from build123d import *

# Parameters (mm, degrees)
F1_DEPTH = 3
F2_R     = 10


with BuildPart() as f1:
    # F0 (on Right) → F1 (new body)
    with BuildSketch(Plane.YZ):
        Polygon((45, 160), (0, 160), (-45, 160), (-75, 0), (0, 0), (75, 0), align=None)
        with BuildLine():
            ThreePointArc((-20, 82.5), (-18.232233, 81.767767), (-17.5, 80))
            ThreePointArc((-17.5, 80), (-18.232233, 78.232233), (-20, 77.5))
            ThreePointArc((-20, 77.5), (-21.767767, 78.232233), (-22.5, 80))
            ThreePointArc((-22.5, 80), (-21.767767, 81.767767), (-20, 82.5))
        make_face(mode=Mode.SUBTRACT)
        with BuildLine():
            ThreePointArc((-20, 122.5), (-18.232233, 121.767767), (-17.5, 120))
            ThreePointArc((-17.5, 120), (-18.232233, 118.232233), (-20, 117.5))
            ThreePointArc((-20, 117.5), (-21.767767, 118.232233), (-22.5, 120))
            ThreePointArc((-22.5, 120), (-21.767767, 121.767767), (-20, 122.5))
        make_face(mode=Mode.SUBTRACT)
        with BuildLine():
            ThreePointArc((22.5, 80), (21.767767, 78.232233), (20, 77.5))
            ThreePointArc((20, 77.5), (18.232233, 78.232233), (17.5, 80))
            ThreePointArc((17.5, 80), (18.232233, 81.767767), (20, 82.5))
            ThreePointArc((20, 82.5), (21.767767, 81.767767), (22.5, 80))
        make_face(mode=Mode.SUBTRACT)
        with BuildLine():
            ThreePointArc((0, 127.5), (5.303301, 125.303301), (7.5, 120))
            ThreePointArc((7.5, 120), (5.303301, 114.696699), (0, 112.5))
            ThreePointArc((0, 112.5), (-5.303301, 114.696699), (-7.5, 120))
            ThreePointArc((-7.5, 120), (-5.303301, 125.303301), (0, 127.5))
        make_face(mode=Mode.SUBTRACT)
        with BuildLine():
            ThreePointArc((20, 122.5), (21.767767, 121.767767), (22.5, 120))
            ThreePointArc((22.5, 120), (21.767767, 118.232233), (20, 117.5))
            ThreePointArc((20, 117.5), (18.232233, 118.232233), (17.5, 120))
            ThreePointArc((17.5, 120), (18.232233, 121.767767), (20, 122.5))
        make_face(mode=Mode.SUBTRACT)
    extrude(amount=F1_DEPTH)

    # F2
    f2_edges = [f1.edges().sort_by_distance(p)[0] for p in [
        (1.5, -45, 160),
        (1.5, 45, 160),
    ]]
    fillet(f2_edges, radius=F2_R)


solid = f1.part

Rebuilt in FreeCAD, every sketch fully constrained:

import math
import FreeCAD as App
import Part
import Sketcher
Q = App.Units.Quantity


def edges_at(feature, points):
    """Names of the edges that pass closest to the given points."""
    edges = feature.Shape.Edges
    near = lambda p: min(range(len(edges)), key=lambda i: edges[i].distToShape(Part.Vertex(*p))[0])
    return sorted({f"Edge{near(p) + 1}" for p in points})


def add_polygon(sketch, points):
    """Adds a closed chain of lines whose ends are joined by coincident constraints."""
    first, n = sketch.GeometryCount, len(points)
    for a, b in zip(points, points[1:] + points[:1]):
        sketch.addGeometry(Part.LineSegment(App.Vector(*a, 0), App.Vector(*b, 0)), False)
    for i in range(n):
        sketch.addConstraint(Sketcher.Constraint("Coincident", first + i, 2, first + (i + 1) % n, 1))

doc = App.newDocument("Part")
body = doc.addObject("PartDesign::Body", "Body")

# Sketch on YZ plane
sketch1 = body.newObject("Sketcher::SketchObject", "Sketch")
sketch1.AttachmentSupport = (doc.getObject("YZ_Plane"), [""])
sketch1.MapMode = "FlatFace"
add_polygon(sketch1, [(45, 160), (-45, 160), (-75, 0), (75, 0)])  # lines 0-3
sketch1.addGeometry(Part.ArcOfCircle(Part.Circle(App.Vector(-20, 80, 0), App.Vector(0, 0, 1), 2.5), math.radians(90), math.radians(180)), False)  # 4
sketch1.addGeometry(Part.ArcOfCircle(Part.Circle(App.Vector(-20, 80, 0), App.Vector(0, 0, 1), 2.5), math.radians(0), math.radians(90)), False)  # 5
sketch1.addGeometry(Part.ArcOfCircle(Part.Circle(App.Vector(-20, 80, 0), App.Vector(0, 0, 1), 2.5), math.radians(-90), math.radians(0)), False)  # 6
sketch1.addGeometry(Part.ArcOfCircle(Part.Circle(App.Vector(-20, 80, 0), App.Vector(0, 0, 1), 2.5), math.radians(180), math.radians(270)), False)  # 7
sketch1.addGeometry(Part.ArcOfCircle(Part.Circle(App.Vector(20, 80, 0), App.Vector(0, 0, 1), 2.5), math.radians(0), math.radians(90)), False)  # 8
sketch1.addGeometry(Part.ArcOfCircle(Part.Circle(App.Vector(20, 80, 0), App.Vector(0, 0, 1), 2.5), math.radians(-90), math.radians(0)), False)  # 9
sketch1.addGeometry(Part.ArcOfCircle(Part.Circle(App.Vector(20, 80, 0), App.Vector(0, 0, 1), 2.5), math.radians(180), math.radians(270)), False)  # 10
sketch1.addGeometry(Part.ArcOfCircle(Part.Circle(App.Vector(20, 80, 0), App.Vector(0, 0, 1), 2.5), math.radians(90), math.radians(180)), False)  # 11
sketch1.addGeometry(Part.ArcOfCircle(Part.Circle(App.Vector(-20, 120, 0), App.Vector(0, 0, 1), 2.5), math.radians(90), math.radians(180)), False)  # 12
sketch1.addGeometry(Part.ArcOfCircle(Part.Circle(App.Vector(-20, 120, 0), App.Vector(0, 0, 1), 2.5), math.radians(0), math.radians(90)), False)  # 13
sketch1.addGeometry(Part.ArcOfCircle(Part.Circle(App.Vector(-20, 120, 0), App.Vector(0, 0, 1), 2.5), math.radians(-90), math.radians(0)), False)  # 14
sketch1.addGeometry(Part.ArcOfCircle(Part.Circle(App.Vector(-20, 120, 0), App.Vector(0, 0, 1), 2.5), math.radians(180), math.radians(270)), False)  # 15
sketch1.addGeometry(Part.ArcOfCircle(Part.Circle(App.Vector(0, 120, 0), App.Vector(0, 0, 1), 7.5), math.radians(90), math.radians(180)), False)  # 16
sketch1.addGeometry(Part.ArcOfCircle(Part.Circle(App.Vector(0, 120, 0), App.Vector(0, 0, 1), 7.5), math.radians(0), math.radians(90)), False)  # 17
sketch1.addGeometry(Part.ArcOfCircle(Part.Circle(App.Vector(0, 120, 0), App.Vector(0, 0, 1), 7.5), math.radians(-90), math.radians(0)), False)  # 18
sketch1.addGeometry(Part.ArcOfCircle(Part.Circle(App.Vector(0, 120, 0), App.Vector(0, 0, 1), 7.5), math.radians(180), math.radians(270)), False)  # 19
sketch1.addGeometry(Part.ArcOfCircle(Part.Circle(App.Vector(20, 120, 0), App.Vector(0, 0, 1), 2.5), math.radians(90), math.radians(180)), False)  # 20
sketch1.addGeometry(Part.ArcOfCircle(Part.Circle(App.Vector(20, 120, 0), App.Vector(0, 0, 1), 2.5), math.radians(0), math.radians(90)), False)  # 21
sketch1.addGeometry(Part.ArcOfCircle(Part.Circle(App.Vector(20, 120, 0), App.Vector(0, 0, 1), 2.5), math.radians(-90), math.radians(0)), False)  # 22
sketch1.addGeometry(Part.ArcOfCircle(Part.Circle(App.Vector(20, 120, 0), App.Vector(0, 0, 1), 2.5), math.radians(180), math.radians(270)), False)  # 23
sketch1.addConstraint(Sketcher.Constraint("Tangent", 4, 1, 5, 2))
sketch1.addConstraint(Sketcher.Constraint("Tangent", 5, 1, 6, 2))
sketch1.addConstraint(Sketcher.Constraint("Tangent", 6, 1, 7, 2))
sketch1.addConstraint(Sketcher.Constraint("Tangent", 7, 1, 4, 2))
sketch1.addConstraint(Sketcher.Constraint("Tangent", 8, 1, 9, 2))
sketch1.addConstraint(Sketcher.Constraint("Tangent", 9, 1, 10, 2))
sketch1.addConstraint(Sketcher.Constraint("Tangent", 10, 1, 11, 2))
sketch1.addConstraint(Sketcher.Constraint("Tangent", 11, 1, 8, 2))
sketch1.addConstraint(Sketcher.Constraint("Tangent", 12, 1, 13, 2))
sketch1.addConstraint(Sketcher.Constraint("Tangent", 13, 1, 14, 2))
sketch1.addConstraint(Sketcher.Constraint("Tangent", 14, 1, 15, 2))
sketch1.addConstraint(Sketcher.Constraint("Tangent", 15, 1, 12, 2))
sketch1.addConstraint(Sketcher.Constraint("Tangent", 16, 1, 17, 2))
sketch1.addConstraint(Sketcher.Constraint("Tangent", 17, 1, 18, 2))
sketch1.addConstraint(Sketcher.Constraint("Tangent", 18, 1, 19, 2))
sketch1.addConstraint(Sketcher.Constraint("Tangent", 19, 1, 16, 2))
sketch1.addConstraint(Sketcher.Constraint("Tangent", 20, 1, 21, 2))
sketch1.addConstraint(Sketcher.Constraint("Tangent", 21, 1, 22, 2))
sketch1.addConstraint(Sketcher.Constraint("Tangent", 22, 1, 23, 2))
sketch1.addConstraint(Sketcher.Constraint("Tangent", 23, 1, 20, 2))
sketch1.addConstraint(Sketcher.Constraint("Horizontal", 0))
sketch1.addConstraint(Sketcher.Constraint("Horizontal", 2))
sketch1.addConstraint(Sketcher.Constraint("Equal", 4, 5))
sketch1.addConstraint(Sketcher.Constraint("Equal", 7, 8))
sketch1.addConstraint(Sketcher.Constraint("Equal", 8, 9))
sketch1.addConstraint(Sketcher.Constraint("Equal", 11, 12))
sketch1.addConstraint(Sketcher.Constraint("Equal", 12, 13))
sketch1.addConstraint(Sketcher.Constraint("Equal", 16, 17))
sketch1.addConstraint(Sketcher.Constraint("Equal", 15, 20))
sketch1.addConstraint(Sketcher.Constraint("Equal", 20, 21))
sketch1.addConstraint(Sketcher.Constraint("Symmetric", 1, 2, 2, 2, -1, 1))
sketch1.addConstraint(Sketcher.Constraint("Symmetric", 4, 3, 8, 3, -2))
sketch1.addConstraint(Sketcher.Constraint("Symmetric", 12, 3, 20, 3, -2))
sketch1.addConstraint(Sketcher.Constraint("Symmetric", 17, 1, 19, 1, -2))
sketch1.addConstraint(Sketcher.Constraint("PointOnObject", 16, 1, -2))
sketch1.addConstraint(Sketcher.Constraint("PointOnObject", 18, 1, -2))
sketch1.addConstraint(Sketcher.Constraint("Horizontal", 15, 3, 16, 3))
sketch1.addConstraint(Sketcher.Constraint("Horizontal", 11, 3, 5, 1))
sketch1.addConstraint(Sketcher.Constraint("Horizontal", 5, 1, 7, 1))
sketch1.addConstraint(Sketcher.Constraint("Horizontal", 7, 1, 8, 1))
sketch1.addConstraint(Sketcher.Constraint("Horizontal", 8, 1, 10, 1))
sketch1.addConstraint(Sketcher.Constraint("Horizontal", 23, 3, 13, 1))
sketch1.addConstraint(Sketcher.Constraint("Horizontal", 13, 1, 15, 1))
sketch1.addConstraint(Sketcher.Constraint("Horizontal", 15, 1, 17, 1))
sketch1.addConstraint(Sketcher.Constraint("Horizontal", 19, 1, 21, 1))
sketch1.addConstraint(Sketcher.Constraint("Horizontal", 21, 1, 23, 1))
sketch1.addConstraint(Sketcher.Constraint("Vertical", 7, 3, 12, 3))
sketch1.addConstraint(Sketcher.Constraint("Vertical", 15, 3, 4, 1))
sketch1.addConstraint(Sketcher.Constraint("Vertical", 4, 1, 6, 1))
sketch1.addConstraint(Sketcher.Constraint("Vertical", 23, 3, 9, 1))
sketch1.addConstraint(Sketcher.Constraint("Vertical", 9, 1, 11, 1))
sketch1.addConstraint(Sketcher.Constraint("Vertical", 6, 1, 12, 1))
sketch1.addConstraint(Sketcher.Constraint("Vertical", 12, 1, 14, 1))
sketch1.addConstraint(Sketcher.Constraint("Vertical", 11, 1, 20, 1))
sketch1.addConstraint(Sketcher.Constraint("Vertical", 20, 1, 22, 1))
sketch1.addConstraint(Sketcher.Constraint("Equal", 1, 3))
sketch1.addConstraint(Sketcher.Constraint("Radius", 4, Q("2.5 mm")))
sketch1.addConstraint(Sketcher.Constraint("Radius", 16, Q("7.5 mm")))
sketch1.addConstraint(Sketcher.Constraint("DistanceX", 0, 2, 0, 1, Q("90 mm")))
sketch1.addConstraint(Sketcher.Constraint("DistanceX", 2, 1, 2, 2, Q("150 mm")))
sketch1.addConstraint(Sketcher.Constraint("DistanceX", 4, 3, -1, 1, Q("20 mm")))
sketch1.addConstraint(Sketcher.Constraint("DistanceY", -1, 1, 4, 3, Q("80 mm")))
sketch1.addConstraint(Sketcher.Constraint("DistanceY", -1, 1, 12, 3, Q("120 mm")))
sketch1.addConstraint(Sketcher.Constraint("DistanceY", -1, 1, 0, 2, Q("160 mm")))
pad1 = body.newObject("PartDesign::Pad", "Pad")
pad1.Profile = sketch1
pad1.Length = 3
doc.recompute()

fillet = body.newObject("PartDesign::Fillet", "Fillet")
fillet.Base = (pad1, edges_at(pad1, [(1.5, -45, 160), (1.5, 45, 160)]))
fillet.Radius = 10

doc.recompute()
